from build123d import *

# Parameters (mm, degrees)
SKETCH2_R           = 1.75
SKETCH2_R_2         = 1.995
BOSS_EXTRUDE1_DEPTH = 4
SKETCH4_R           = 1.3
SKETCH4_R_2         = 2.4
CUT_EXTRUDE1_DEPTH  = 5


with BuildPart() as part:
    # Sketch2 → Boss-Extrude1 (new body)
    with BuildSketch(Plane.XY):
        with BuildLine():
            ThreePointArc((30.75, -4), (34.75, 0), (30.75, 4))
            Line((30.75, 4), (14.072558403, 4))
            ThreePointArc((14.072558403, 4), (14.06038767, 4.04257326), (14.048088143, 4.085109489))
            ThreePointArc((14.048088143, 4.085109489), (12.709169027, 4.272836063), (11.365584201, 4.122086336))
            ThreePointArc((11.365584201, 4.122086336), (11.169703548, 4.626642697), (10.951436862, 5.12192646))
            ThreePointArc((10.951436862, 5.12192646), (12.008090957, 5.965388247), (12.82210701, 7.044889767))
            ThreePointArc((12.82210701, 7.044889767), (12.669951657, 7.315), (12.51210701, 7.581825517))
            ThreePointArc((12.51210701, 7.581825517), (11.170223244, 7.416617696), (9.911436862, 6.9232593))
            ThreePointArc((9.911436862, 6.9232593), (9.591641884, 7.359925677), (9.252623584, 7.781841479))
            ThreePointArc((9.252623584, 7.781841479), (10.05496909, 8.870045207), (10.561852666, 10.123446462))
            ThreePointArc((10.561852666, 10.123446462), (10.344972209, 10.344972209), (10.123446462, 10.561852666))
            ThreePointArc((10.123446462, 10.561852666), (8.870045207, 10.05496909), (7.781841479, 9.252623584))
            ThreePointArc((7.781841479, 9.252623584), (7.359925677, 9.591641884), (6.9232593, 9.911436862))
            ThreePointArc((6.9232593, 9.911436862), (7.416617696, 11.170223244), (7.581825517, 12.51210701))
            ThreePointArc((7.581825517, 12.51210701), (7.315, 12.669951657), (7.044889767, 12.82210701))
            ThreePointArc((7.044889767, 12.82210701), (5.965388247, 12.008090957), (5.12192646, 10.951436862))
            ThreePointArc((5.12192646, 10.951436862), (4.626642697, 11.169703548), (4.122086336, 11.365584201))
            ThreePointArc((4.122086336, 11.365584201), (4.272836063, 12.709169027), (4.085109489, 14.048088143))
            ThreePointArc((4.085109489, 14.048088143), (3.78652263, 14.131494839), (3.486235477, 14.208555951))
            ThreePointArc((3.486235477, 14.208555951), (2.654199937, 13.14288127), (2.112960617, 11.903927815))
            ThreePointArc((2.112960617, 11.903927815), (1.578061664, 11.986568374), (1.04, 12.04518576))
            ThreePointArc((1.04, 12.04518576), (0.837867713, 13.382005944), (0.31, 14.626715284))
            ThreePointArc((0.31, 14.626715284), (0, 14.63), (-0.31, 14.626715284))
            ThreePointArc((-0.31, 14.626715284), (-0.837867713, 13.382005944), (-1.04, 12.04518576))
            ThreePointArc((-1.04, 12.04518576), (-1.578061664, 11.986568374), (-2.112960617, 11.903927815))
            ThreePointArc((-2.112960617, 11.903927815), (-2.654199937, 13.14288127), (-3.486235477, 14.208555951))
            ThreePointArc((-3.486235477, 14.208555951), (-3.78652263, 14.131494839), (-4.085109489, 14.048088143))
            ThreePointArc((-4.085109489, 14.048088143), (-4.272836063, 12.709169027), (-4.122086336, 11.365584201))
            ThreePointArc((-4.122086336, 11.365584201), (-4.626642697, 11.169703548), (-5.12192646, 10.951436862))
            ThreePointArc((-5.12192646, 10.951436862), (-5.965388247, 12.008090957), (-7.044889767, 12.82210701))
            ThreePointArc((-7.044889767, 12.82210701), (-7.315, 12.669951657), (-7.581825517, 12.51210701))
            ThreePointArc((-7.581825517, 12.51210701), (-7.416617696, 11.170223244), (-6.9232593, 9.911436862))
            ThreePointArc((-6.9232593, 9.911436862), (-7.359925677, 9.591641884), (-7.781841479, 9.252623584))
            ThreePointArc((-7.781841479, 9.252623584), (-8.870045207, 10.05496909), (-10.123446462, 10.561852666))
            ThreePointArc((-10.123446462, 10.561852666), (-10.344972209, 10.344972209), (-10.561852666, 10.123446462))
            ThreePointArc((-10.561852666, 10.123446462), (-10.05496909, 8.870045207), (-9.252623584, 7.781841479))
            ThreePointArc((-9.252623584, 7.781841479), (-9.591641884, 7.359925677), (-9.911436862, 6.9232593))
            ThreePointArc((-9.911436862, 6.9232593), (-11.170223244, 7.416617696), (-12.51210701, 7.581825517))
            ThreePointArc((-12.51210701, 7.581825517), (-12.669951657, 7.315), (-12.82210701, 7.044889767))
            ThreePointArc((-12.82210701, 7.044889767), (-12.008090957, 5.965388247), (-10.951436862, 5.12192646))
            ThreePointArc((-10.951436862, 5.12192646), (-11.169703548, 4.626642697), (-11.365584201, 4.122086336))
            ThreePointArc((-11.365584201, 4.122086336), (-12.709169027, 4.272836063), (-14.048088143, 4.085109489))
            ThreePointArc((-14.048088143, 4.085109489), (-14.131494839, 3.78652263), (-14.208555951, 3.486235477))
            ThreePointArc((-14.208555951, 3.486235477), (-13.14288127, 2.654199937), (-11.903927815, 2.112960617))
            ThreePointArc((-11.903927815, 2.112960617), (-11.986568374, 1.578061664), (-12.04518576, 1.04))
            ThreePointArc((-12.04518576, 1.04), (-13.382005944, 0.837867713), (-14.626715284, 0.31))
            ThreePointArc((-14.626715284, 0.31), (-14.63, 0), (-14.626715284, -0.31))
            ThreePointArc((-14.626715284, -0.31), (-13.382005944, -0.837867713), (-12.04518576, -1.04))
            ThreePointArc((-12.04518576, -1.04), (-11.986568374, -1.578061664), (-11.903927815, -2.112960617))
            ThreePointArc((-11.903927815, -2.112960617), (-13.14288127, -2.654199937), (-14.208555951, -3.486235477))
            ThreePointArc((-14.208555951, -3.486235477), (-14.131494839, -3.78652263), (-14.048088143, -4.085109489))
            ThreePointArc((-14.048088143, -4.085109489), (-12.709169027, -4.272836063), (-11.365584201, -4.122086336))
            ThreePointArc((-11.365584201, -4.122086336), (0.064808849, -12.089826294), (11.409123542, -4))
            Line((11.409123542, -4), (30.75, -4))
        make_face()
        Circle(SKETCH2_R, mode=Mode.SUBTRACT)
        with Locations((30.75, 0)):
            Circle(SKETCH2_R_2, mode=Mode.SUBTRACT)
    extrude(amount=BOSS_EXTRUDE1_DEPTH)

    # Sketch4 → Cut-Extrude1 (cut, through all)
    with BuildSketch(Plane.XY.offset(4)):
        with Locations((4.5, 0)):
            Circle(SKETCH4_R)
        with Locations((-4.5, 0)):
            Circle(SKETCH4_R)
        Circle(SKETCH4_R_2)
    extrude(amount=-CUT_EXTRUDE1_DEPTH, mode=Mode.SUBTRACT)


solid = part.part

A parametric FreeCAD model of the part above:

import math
import FreeCAD as App
import Part
import Sketcher

V = App.Vector

doc = App.newDocument("Part")
body = doc.addObject("PartDesign::Body", "Body")

# Sketch on XY plane
sketch1 = body.newObject("Sketcher::SketchObject", "Sketch")
sketch1.AttachmentSupport = (doc.getObject("XY_Plane"), [""])
sketch1.MapMode = "FlatFace"
sketch1.addGeometry([
    Part.ArcOfCircle(Part.Circle(V(30.75, 0, 0), V(0, 0, 1), 4), math.radians(-90), math.radians(90)),  # 0
    Part.LineSegment(V(30.75, 4, 0), V(14.072558, 4, 0)),  # 1
    Part.ArcOfCircle(Part.Circle(V(-0.000108, -0.000031, 0), V(0, 0, 1), 14.630112), math.radians(15.867332), math.radians(16.214149)),  # 2
    Part.ArcOfCircle(Part.Circle(V(12.63474, -1.126651, 0), V(0, 0, 1), 5.4), math.radians(74.827194), math.radians(103.593324)),  # 3
    Part.ArcOfCircle(Part.Circle(V(0, 0, 0), V(0, 0, 1), 12.09), math.radians(19.934768), math.radians(25.065232)),  # 4
    Part.ArcOfCircle(Part.Circle(V(8.137448, 9.730773, 0), V(0, 0, 1), 5.4), math.radians(-58.593324), math.radians(-29.827194)),  # 5
    Part.ArcOfCircle(Part.Circle(V(-0.000002, -0.000001, 0), V(0, 0, 1), 14.630002), math.radians(28.78585), math.radians(31.21415)),  # 6
    Part.ArcOfCircle(Part.Circle(V(12.49582, 2.18185, 0), V(0, 0, 1), 5.4), math.radians(89.827194), math.radians(118.593324)),  # 7
    Part.ArcOfCircle(Part.Circle(V(0, 0, 0), V(0, 0, 1), 12.09), math.radians(34.934768), math.radians(40.065232)),  # 8
    Part.ArcOfCircle(Part.Circle(V(5.341662, 11.505331, 0), V(0, 0, 1), 5.4), math.radians(-43.593324), math.radians(-14.827194)),  # 9
    Part.ArcOfCircle(Part.Circle(V(0, 0, 0), V(0, 0, 1), 14.63), math.radians(43.78585), math.radians(46.21415)),  # 10
    Part.ArcOfCircle(Part.Circle(V(11.505331, 5.341662, 0), V(0, 0, 1), 5.4), math.radians(104.827194), math.radians(133.593324)),  # 11
    Part.ArcOfCircle(Part.Circle(V(0, 0, 0), V(0, 0, 1), 12.09), math.radians(49.934768), math.radians(55.065232)),  # 12
    Part.ArcOfCircle(Part.Circle(V(2.18185, 12.49582, 0), V(0, 0, 1), 5.4), math.radians(-28.593324), math.radians(0.172806)),  # 13
    Part.ArcOfCircle(Part.Circle(V(-0.000001, -0.000002, 0), V(0, 0, 1), 14.630002), math.radians(58.78585), math.radians(61.21415)),  # 14
    Part.ArcOfCircle(Part.Circle(V(9.730773, 8.137448, 0), V(0, 0, 1), 5.4), math.radians(119.827194), math.radians(148.593324)),  # 15
    Part.ArcOfCircle(Part.Circle(V(0, 0, 0), V(0, 0, 1), 12.09), math.radians(64.934768), math.radians(70.065232)),  # 16
    Part.ArcOfCircle(Part.Circle(V(-1.126651, 12.63474, 0), V(0, 0, 1), 5.4), math.radians(-13.593324), math.radians(15.172806)),  # 17
    Part.ArcOfCircle(Part.Circle(V(0, 0, 0), V(0, 0, 1), 14.63), math.radians(73.78585), math.radians(76.21415)),  # 18
    Part.ArcOfCircle(Part.Circle(V(7.293078, 10.37868, 0), V(0, 0, 1), 5.4), math.radians(134.827194), math.radians(163.593324)),  # 19
    Part.ArcOfCircle(Part.Circle(V(0, 0, 0), V(0, 0, 1), 12.09), math.radians(79.934768), math.radians(85.065232)),  # 20
    Part.ArcOfCircle(Part.Circle(V(-4.358373, 11.912623, 0), V(0, 0, 1), 5.4), math.radians(1.406676), math.radians(30.172806)),  # 21
    Part.ArcOfCircle(Part.Circle(V(0, 0, 0), V(0, 0, 1), 14.63), math.radians(88.78585), math.radians(91.21415)),  # 22
    Part.ArcOfCircle(Part.Circle(V(4.358373, 11.912623, 0), V(0, 0, 1), 5.4), math.radians(149.827194), math.radians(178.593324)),  # 23
    Part.ArcOfCircle(Part.Circle(V(0, 0, 0), V(0, 0, 1), 12.09), math.radians(94.934768), math.radians(100.065232)),  # 24
    Part.ArcOfCircle(Part.Circle(V(-7.293078, 10.37868, 0), V(0, 0, 1), 5.4), math.radians(16.406676), math.radians(45.172806)),  # 25
    Part.ArcOfCircle(Part.Circle(V(0, 0, 0), V(0, 0, 1), 14.63), math.radians(103.78585), math.radians(106.21415)),  # 26
    Part.ArcOfCircle(Part.Circle(V(1.126651, 12.63474, 0), V(0, 0, 1), 5.4), math.radians(164.827194), math.radians(193.593324)),  # 27
    Part.ArcOfCircle(Part.Circle(V(0, 0, 0), V(0, 0, 1), 12.09), math.radians(109.934768), math.radians(115.065232)),  # 28
    Part.ArcOfCircle(Part.Circle(V(-9.730773, 8.137448, 0), V(0, 0, 1), 5.4), math.radians(31.406676), math.radians(60.172806)),  # 29
    Part.ArcOfCircle(Part.Circle(V(0.000001, -0.000002, 0), V(0, 0, 1), 14.630002), math.radians(118.78585), math.radians(121.21415)),  # 30
    Part.ArcOfCircle(Part.Circle(V(-2.18185, 12.49582, 0), V(0, 0, 1), 5.4), math.radians(179.827194), math.radians(208.593324)),  # 31
    Part.ArcOfCircle(Part.Circle(V(0, 0, 0), V(0, 0, 1), 12.09), math.radians(124.934768), math.radians(130.065232)),  # 32
    Part.ArcOfCircle(Part.Circle(V(-11.505331, 5.341662, 0), V(0, 0, 1), 5.4), math.radians(46.406676), math.radians(75.172806)),  # 33
    Part.ArcOfCircle(Part.Circle(V(0, 0, 0), V(0, 0, 1), 14.63), math.radians(133.78585), math.radians(136.21415)),  # 34
    Part.ArcOfCircle(Part.Circle(V(-5.341662, 11.505331, 0), V(0, 0, 1), 5.4), math.radians(-165.172806), math.radians(-136.406676)),  # 35
    Part.ArcOfCircle(Part.Circle(V(0, 0, 0), V(0, 0, 1), 12.09), math.radians(139.934768), math.radians(145.065232)),  # 36
    Part.ArcOfCircle(Part.Circle(V(-12.49582, 2.18185, 0), V(0, 0, 1), 5.4), math.radians(61.406676), math.radians(90.172806)),  # 37
    Part.ArcOfCircle(Part.Circle(V(0.000002, -0.000001, 0), V(0, 0, 1), 14.630002), math.radians(148.78585), math.radians(151.21415)),  # 38
    Part.ArcOfCircle(Part.Circle(V(-8.137448, 9.730773, 0), V(0, 0, 1), 5.4), math.radians(-150.172806), math.radians(-121.406676)),  # 39
    Part.ArcOfCircle(Part.Circle(V(0, 0, 0), V(0, 0, 1), 12.09), math.radians(154.934768), math.radians(160.065232)),  # 40
    Part.ArcOfCircle(Part.Circle(V(-12.63474, -1.126651, 0), V(0, 0, 1), 5.4), math.radians(76.406676), math.radians(105.172806)),  # 41
    Part.ArcOfCircle(Part.Circle(V(0, 0, 0), V(0, 0, 1), 14.63), math.radians(163.78585), math.radians(166.21415)),  # 42
    Part.ArcOfCircle(Part.Circle(V(-10.37868, 7.293078, 0), V(0, 0, 1), 5.4), math.radians(-135.172806), math.radians(-106.406676)),  # 43
    Part.ArcOfCircle(Part.Circle(V(0, 0, 0), V(0, 0, 1), 12.09), math.radians(169.934768), math.radians(175.065232)),  # 44
    Part.ArcOfCircle(Part.Circle(V(-11.912623, -4.358373, 0), V(0, 0, 1), 5.4), math.radians(91.406676), math.radians(120.172806)),  # 45
    Part.ArcOfCircle(Part.Circle(V(0, 0, 0), V(0, 0, 1), 14.63), math.radians(178.78585), math.radians(181.21415)),  # 46
    Part.ArcOfCircle(Part.Circle(V(-11.912623, 4.358373, 0), V(0, 0, 1), 5.4), math.radians(-120.172806), math.radians(-91.406676)),  # 47
    Part.ArcOfCircle(Part.Circle(V(0, 0, 0), V(0, 0, 1), 12.09), math.radians(-175.065232), math.radians(-169.934768)),  # 48
    Part.ArcOfCircle(Part.Circle(V(-10.37868, -7.293078, 0), V(0, 0, 1), 5.4), math.radians(106.406676), math.radians(135.172806)),  # 49
    Part.ArcOfCircle(Part.Circle(V(0, 0, 0), V(0, 0, 1), 14.63), math.radians(-166.21415), math.radians(-163.78585)),  # 50
    Part.ArcOfCircle(Part.Circle(V(-12.63474, 1.126651, 0), V(0, 0, 1), 5.4), math.radians(-105.172806), math.radians(-76.406676)),  # 51
    Part.ArcOfCircle(Part.Circle(V(0, 0, 0), V(0, 0, 1), 12.09), math.radians(-160.065232), math.radians(-19.320493)),  # 52
    Part.LineSegment(V(11.409124, -4, 0), V(30.75, -4, 0)),  # 53
    Part.Circle(V(0, 0, 0), V(0, 0, 1), 1.75),  # 54
    Part.Circle(V(30.75, 0, 0), V(0, 0, 1), 1.995),  # 55
], False)
sketch1.addConstraint([
    Sketcher.Constraint("Coincident", 0, 2, 1, 1),
    Sketcher.Constraint("Coincident", 1, 2, 2, 1),
    Sketcher.Constraint("Coincident", 2, 2, 3, 1),
    Sketcher.Constraint("Coincident", 3, 2, 4, 1),
    Sketcher.Constraint("Coincident", 4, 2, 5, 1),
    Sketcher.Constraint("Coincident", 5, 2, 6, 1),
    Sketcher.Constraint("Coincident", 6, 2, 7, 1),
    Sketcher.Constraint("Coincident", 7, 2, 8, 1),
    Sketcher.Constraint("Coincident", 8, 2, 9, 1),
    Sketcher.Constraint("Coincident", 9, 2, 10, 1),
    Sketcher.Constraint("Coincident", 10, 2, 11, 1),
    Sketcher.Constraint("Coincident", 11, 2, 12, 1),
    Sketcher.Constraint("Coincident", 12, 2, 13, 1),
    Sketcher.Constraint("Coincident", 13, 2, 14, 1),
    Sketcher.Constraint("Coincident", 14, 2, 15, 1),
    Sketcher.Constraint("Coincident", 15, 2, 16, 1),
    Sketcher.Constraint("Coincident", 16, 2, 17, 1),
    Sketcher.Constraint("Coincident", 17, 2, 18, 1),
    Sketcher.Constraint("Coincident", 18, 2, 19, 1),
    Sketcher.Constraint("Coincident", 19, 2, 20, 1),
    Sketcher.Constraint("Coincident", 20, 2, 21, 1),
    Sketcher.Constraint("Coincident", 21, 2, 22, 1),
    Sketcher.Constraint("Coincident", 22, 2, 23, 1),
    Sketcher.Constraint("Coincident", 23, 2, 24, 1),
    Sketcher.Constraint("Coincident", 24, 2, 25, 1),
    Sketcher.Constraint("Coincident", 25, 2, 26, 1),
    Sketcher.Constraint("Coincident", 26, 2, 27, 1),
    Sketcher.Constraint("Coincident", 27, 2, 28, 1),
    Sketcher.Constraint("Coincident", 28, 2, 29, 1),
    Sketcher.Constraint("Coincident", 29, 2, 30, 1),
    Sketcher.Constraint("Coincident", 30, 2, 31, 1),
    Sketcher.Constraint("Coincident", 31, 2, 32, 1),
    Sketcher.Constraint("Coincident", 32, 2, 33, 1),
    Sketcher.Constraint("Coincident", 33, 2, 34, 1),
    Sketcher.Constraint("Coincident", 34, 2, 35, 1),
    Sketcher.Constraint("Coincident", 35, 2, 36, 1),
    Sketcher.Constraint("Coincident", 36, 2, 37, 1),
    Sketcher.Constraint("Coincident", 37, 2, 38, 1),
    Sketcher.Constraint("Coincident", 38, 2, 39, 1),
    Sketcher.Constraint("Coincident", 39, 2, 40, 1),
    Sketcher.Constraint("Coincident", 40, 2, 41, 1),
    Sketcher.Constraint("Coincident", 41, 2, 42, 1),
    Sketcher.Constraint("Coincident", 42, 2, 43, 1),
    Sketcher.Constraint("Coincident", 43, 2, 44, 1),
    Sketcher.Constraint("Coincident", 44, 2, 45, 1),
    Sketcher.Constraint("Coincident", 45, 2, 46, 1),
    Sketcher.Constraint("Coincident", 46, 2, 47, 1),
    Sketcher.Constraint("Coincident", 47, 2, 48, 1),
    Sketcher.Constraint("Coincident", 48, 2, 49, 1),
    Sketcher.Constraint("Coincident", 49, 2, 50, 1),
    Sketcher.Constraint("Coincident", 50, 2, 51, 1),
    Sketcher.Constraint("Coincident", 51, 2, 52, 1),
    Sketcher.Constraint("Coincident", 52, 2, 53, 1),
    Sketcher.Constraint("Coincident", 53, 2, 0, 1),
    Sketcher.Constraint("Horizontal", 1),
    Sketcher.Constraint("Horizontal", 53),
    Sketcher.Constraint("Coincident", 4, 3, -1, 1),
    Sketcher.Constraint("Coincident", 6, 3, -1, 1),
    Sketcher.Constraint("Coincident", 8, 3, -1, 1),
    Sketcher.Constraint("Coincident", 10, 3, -1, 1),
    Sketcher.Constraint("Coincident", 12, 3, -1, 1),
    Sketcher.Constraint("Coincident", 14, 3, -1, 1),
    Sketcher.Constraint("Coincident", 16, 3, -1, 1),
    Sketcher.Constraint("Coincident", 18, 3, -1, 1),
    Sketcher.Constraint("Coincident", 20, 3, -1, 1),
    Sketcher.Constraint("Coincident", 22, 3, -1, 1),
    Sketcher.Constraint("Coincident", 24, 3, -1, 1),
    Sketcher.Constraint("Coincident", 26, 3, -1, 1),
    Sketcher.Constraint("Coincident", 28, 3, -1, 1),
    Sketcher.Constraint("Coincident", 30, 3, -1, 1),
    Sketcher.Constraint("Coincident", 32, 3, -1, 1),
    Sketcher.Constraint("Coincident", 34, 3, -1, 1),
    Sketcher.Constraint("Coincident", 36, 3, -1, 1),
    Sketcher.Constraint("Coincident", 38, 3, -1, 1),
    Sketcher.Constraint("Coincident", 40, 3, -1, 1),
    Sketcher.Constraint("Coincident", 42, 3, -1, 1),
    Sketcher.Constraint("Coincident", 44, 3, -1, 1),
    Sketcher.Constraint("Coincident", 46, 3, -1, 1),
    Sketcher.Constraint("Coincident", 48, 3, -1, 1),
    Sketcher.Constraint("Coincident", 50, 3, -1, 1),
    Sketcher.Constraint("Coincident", 52, 3, -1, 1),
    Sketcher.Constraint("Coincident", 54, 3, -1, 1),
    Sketcher.Constraint("Coincident", 55, 3, 0, 3),
    Sketcher.Constraint("PointOnObject", 0, 3, -1),
    Sketcher.Constraint("Radius", 0, 4.0),
    Sketcher.Constraint("Diameter", 54, 3.5),
    Sketcher.Constraint("Radius", 3, 5.4),
    Sketcher.Constraint("Radius", 5, 5.4),
    Sketcher.Constraint("Radius", 7, 5.4),
    Sketcher.Constraint("Radius", 9, 5.4),
    Sketcher.Constraint("Radius", 11, 5.4),
    Sketcher.Constraint("Radius", 13, 5.4),
    Sketcher.Constraint("Radius", 15, 5.4),
    Sketcher.Constraint("Radius", 17, 5.4),
    Sketcher.Constraint("Radius", 19, 5.4),
    Sketcher.Constraint("Radius", 21, 5.4),
    Sketcher.Constraint("Radius", 23, 5.4),
    Sketcher.Constraint("Radius", 25, 5.4),
    Sketcher.Constraint("Radius", 27, 5.4),
    Sketcher.Constraint("Radius", 29, 5.4),
    Sketcher.Constraint("Radius", 31, 5.4),
    Sketcher.Constraint("Radius", 33, 5.4),
    Sketcher.Constraint("Radius", 35, 5.4),
    Sketcher.Constraint("Radius", 37, 5.4),
    Sketcher.Constraint("Radius", 39, 5.4),
    Sketcher.Constraint("Radius", 41, 5.4),
    Sketcher.Constraint("Radius", 43, 5.4),
    Sketcher.Constraint("Radius", 45, 5.4),
    Sketcher.Constraint("Radius", 47, 5.4),
    Sketcher.Constraint("Radius", 49, 5.4),
    Sketcher.Constraint("Radius", 51, 5.4),
    Sketcher.Constraint("Diameter", 55, 3.99),
    Sketcher.Constraint("Radius", 4, 12.09),
    Sketcher.Constraint("Radius", 6, 14.630002),
    Sketcher.Constraint("Radius", 8, 12.09),
    Sketcher.Constraint("Radius", 10, 14.63),
    Sketcher.Constraint("Radius", 12, 12.09),
    Sketcher.Constraint("Radius", 14, 14.630002),
    Sketcher.Constraint("Radius", 16, 12.09),
    Sketcher.Constraint("Radius", 18, 14.63),
    Sketcher.Constraint("Radius", 20, 12.09),
    Sketcher.Constraint("Radius", 22, 14.63),
    Sketcher.Constraint("Radius", 24, 12.09),
    Sketcher.Constraint("Radius", 26, 14.63),
    Sketcher.Constraint("Radius", 28, 12.09),
    Sketcher.Constraint("Radius", 30, 14.630002),
    Sketcher.Constraint("Radius", 32, 12.09),
    Sketcher.Constraint("Radius", 34, 14.63),
    Sketcher.Constraint("Radius", 36, 12.09),
    Sketcher.Constraint("Radius", 38, 14.630002),
    Sketcher.Constraint("Radius", 40, 12.09),
    Sketcher.Constraint("Radius", 42, 14.63),
    Sketcher.Constraint("Radius", 44, 12.09),
    Sketcher.Constraint("Radius", 46, 14.63),
    Sketcher.Constraint("Radius", 48, 12.09),
    Sketcher.Constraint("Radius", 50, 14.63),
    Sketcher.Constraint("Radius", 52, 12.09),
    Sketcher.Constraint("DistanceX", -1, 1, 0, 3, 30.75),
    Sketcher.Constraint("DistanceX", -1, 1, 0, 2, 30.75),
    Sketcher.Constraint("DistanceX", -1, 1, 20, 2, 1.04),
    Sketcher.Constraint("DistanceX", -1, 1, 21, 2, 0.31),
    Sketcher.Constraint("DistanceX", 22, 2, -1, 1, 0.31),
    Sketcher.Constraint("DistanceX", 23, 2, -1, 1, 1.04),
    Sketcher.Constraint("DistanceY", -1, 1, 44, 2, 1.04),
    Sketcher.Constraint("DistanceY", -1, 1, 45, 2, 0.31),
    Sketcher.Constraint("DistanceY", 46, 2, -1, 1, 0.31),
    Sketcher.Constraint("DistanceY", 47, 2, -1, 1, 1.04),
    Sketcher.Constraint("DistanceX", -1, 1, 53, 2, 30.75),
    Sketcher.Constraint("Radius", 2, 14.630112),
    Sketcher.Constraint("DistanceX", 1, 2, 1, 1, 16.677442),
    Sketcher.Constraint("DistanceX", 2, 3, -1, 1, 0.000108),
    Sketcher.Constraint("DistanceX", -1, 1, 3, 3, 12.63474),
    Sketcher.Constraint("DistanceY", 3, 3, -1, 1, 1.126651),
    Sketcher.Constraint("DistanceX", -1, 1, 7, 3, 12.49582),
    Sketcher.Constraint("DistanceY", -1, 1, 7, 3, 2.18185),
    Sketcher.Constraint("DistanceX", -1, 1, 9, 3, 5.341662),
    Sketcher.Constraint("DistanceY", -1, 1, 9, 3, 11.505331),
    Sketcher.Constraint("DistanceX", -1, 1, 11, 3, 11.505331),
    Sketcher.Constraint("DistanceY", -1, 1, 11, 3, 5.341662),
    Sketcher.Constraint("DistanceX", -1, 1, 13, 3, 2.18185),
    Sketcher.Constraint("DistanceY", -1, 1, 13, 3, 12.49582),
    Sketcher.Constraint("DistanceX", 17, 3, -1, 1, 1.126651),
    Sketcher.Constraint("DistanceY", -1, 1, 17, 3, 12.63474),
    Sketcher.Constraint("DistanceX", -1, 1, 19, 3, 7.293078),
    Sketcher.Constraint("DistanceY", -1, 1, 19, 3, 10.37868),
    Sketcher.Constraint("DistanceX", 25, 3, -1, 1, 7.293078),
    Sketcher.Constraint("DistanceY", -1, 1, 25, 3, 10.37868),
    Sketcher.Constraint("DistanceX", -1, 1, 27, 3, 1.126651),
    Sketcher.Constraint("DistanceY", -1, 1, 27, 3, 12.63474),
    Sketcher.Constraint("DistanceX", 31, 3, -1, 1, 2.18185),
    Sketcher.Constraint("DistanceY", -1, 1, 31, 3, 12.49582),
    Sketcher.Constraint("DistanceX", 33, 3, -1, 1, 11.505331),
    Sketcher.Constraint("DistanceY", -1, 1, 33, 3, 5.341662),
    Sketcher.Constraint("DistanceX", 35, 3, -1, 1, 5.341662),
    Sketcher.Constraint("DistanceY", -1, 1, 35, 3, 11.505331),
    Sketcher.Constraint("DistanceX", 37, 3, -1, 1, 12.49582),
    Sketcher.Constraint("DistanceY", -1, 1, 37, 3, 2.18185),
    Sketcher.Constraint("DistanceX", 41, 3, -1, 1, 12.63474),
    Sketcher.Constraint("DistanceY", 41, 3, -1, 1, 1.126651),
    Sketcher.Constraint("DistanceX", 43, 3, -1, 1, 10.37868),
    Sketcher.Constraint("DistanceY", -1, 1, 43, 3, 7.293078),
    Sketcher.Constraint("DistanceX", 49, 3, -1, 1, 10.37868),
    Sketcher.Constraint("DistanceY", 49, 3, -1, 1, 7.293078),
    Sketcher.Constraint("DistanceX", 51, 3, -1, 1, 12.63474),
    Sketcher.Constraint("DistanceY", -1, 1, 51, 3, 1.126651),
    Sketcher.Constraint("DistanceY", -1, 1, 5, 2, 7.04489),
    Sketcher.Constraint("DistanceX", -1, 1, 14, 2, 7.04489),
    Sketcher.Constraint("DistanceX", 29, 2, -1, 1, 7.04489),
    Sketcher.Constraint("DistanceY", -1, 1, 38, 2, 7.04489),
    Sketcher.Constraint("DistanceX", -1, 1, 5, 3, 8.137448),
    Sketcher.Constraint("DistanceX", -1, 1, 15, 3, 9.730773),
    Sketcher.Constraint("DistanceX", 29, 3, -1, 1, 9.730773),
    Sketcher.Constraint("DistanceX", 39, 3, -1, 1, 8.137448),
])
pad1 = body.newObject("PartDesign::Pad", "Pad")
pad1.Profile = sketch1
pad1.Length = 4

# Sketch on XY plane
sketch2 = body.newObject("Sketcher::SketchObject", "Sketch001")
sketch2.AttachmentSupport = (doc.getObject("XY_Plane"), [""])
sketch2.MapMode = "FlatFace"
sketch2.AttachmentOffset = App.Placement(V(0, 0, 4), App.Rotation())
sketch2.addGeometry([
    Part.Circle(V(4.5, 0, 0), V(0, 0, 1), 1.3),
    Part.Circle(V(-4.5, 0, 0), V(0, 0, 1), 1.3),
    Part.Circle(V(0, 0, 0), V(0, 0, 1), 2.4),
], False)
sketch2.addConstraint([
    Sketcher.Constraint("Coincident", 2, 3, -1, 1),
    Sketcher.Constraint("Equal", 0, 1),
    Sketcher.Constraint("Symmetric", 0, 3, 1, 3, -1, 1),
    Sketcher.Constraint("PointOnObject", 0, 3, -1),
    Sketcher.Constraint("Diameter", 0, 2.6),
    Sketcher.Constraint("Diameter", 2, 4.8),
    Sketcher.Constraint("DistanceX", 1, 3, 0, 3, 9.0),
])
pocket1 = body.newObject("PartDesign::Pocket", "Pocket")
pocket1.Profile = sketch2
pocket1.Type = "ThroughAll"

doc.recompute()
